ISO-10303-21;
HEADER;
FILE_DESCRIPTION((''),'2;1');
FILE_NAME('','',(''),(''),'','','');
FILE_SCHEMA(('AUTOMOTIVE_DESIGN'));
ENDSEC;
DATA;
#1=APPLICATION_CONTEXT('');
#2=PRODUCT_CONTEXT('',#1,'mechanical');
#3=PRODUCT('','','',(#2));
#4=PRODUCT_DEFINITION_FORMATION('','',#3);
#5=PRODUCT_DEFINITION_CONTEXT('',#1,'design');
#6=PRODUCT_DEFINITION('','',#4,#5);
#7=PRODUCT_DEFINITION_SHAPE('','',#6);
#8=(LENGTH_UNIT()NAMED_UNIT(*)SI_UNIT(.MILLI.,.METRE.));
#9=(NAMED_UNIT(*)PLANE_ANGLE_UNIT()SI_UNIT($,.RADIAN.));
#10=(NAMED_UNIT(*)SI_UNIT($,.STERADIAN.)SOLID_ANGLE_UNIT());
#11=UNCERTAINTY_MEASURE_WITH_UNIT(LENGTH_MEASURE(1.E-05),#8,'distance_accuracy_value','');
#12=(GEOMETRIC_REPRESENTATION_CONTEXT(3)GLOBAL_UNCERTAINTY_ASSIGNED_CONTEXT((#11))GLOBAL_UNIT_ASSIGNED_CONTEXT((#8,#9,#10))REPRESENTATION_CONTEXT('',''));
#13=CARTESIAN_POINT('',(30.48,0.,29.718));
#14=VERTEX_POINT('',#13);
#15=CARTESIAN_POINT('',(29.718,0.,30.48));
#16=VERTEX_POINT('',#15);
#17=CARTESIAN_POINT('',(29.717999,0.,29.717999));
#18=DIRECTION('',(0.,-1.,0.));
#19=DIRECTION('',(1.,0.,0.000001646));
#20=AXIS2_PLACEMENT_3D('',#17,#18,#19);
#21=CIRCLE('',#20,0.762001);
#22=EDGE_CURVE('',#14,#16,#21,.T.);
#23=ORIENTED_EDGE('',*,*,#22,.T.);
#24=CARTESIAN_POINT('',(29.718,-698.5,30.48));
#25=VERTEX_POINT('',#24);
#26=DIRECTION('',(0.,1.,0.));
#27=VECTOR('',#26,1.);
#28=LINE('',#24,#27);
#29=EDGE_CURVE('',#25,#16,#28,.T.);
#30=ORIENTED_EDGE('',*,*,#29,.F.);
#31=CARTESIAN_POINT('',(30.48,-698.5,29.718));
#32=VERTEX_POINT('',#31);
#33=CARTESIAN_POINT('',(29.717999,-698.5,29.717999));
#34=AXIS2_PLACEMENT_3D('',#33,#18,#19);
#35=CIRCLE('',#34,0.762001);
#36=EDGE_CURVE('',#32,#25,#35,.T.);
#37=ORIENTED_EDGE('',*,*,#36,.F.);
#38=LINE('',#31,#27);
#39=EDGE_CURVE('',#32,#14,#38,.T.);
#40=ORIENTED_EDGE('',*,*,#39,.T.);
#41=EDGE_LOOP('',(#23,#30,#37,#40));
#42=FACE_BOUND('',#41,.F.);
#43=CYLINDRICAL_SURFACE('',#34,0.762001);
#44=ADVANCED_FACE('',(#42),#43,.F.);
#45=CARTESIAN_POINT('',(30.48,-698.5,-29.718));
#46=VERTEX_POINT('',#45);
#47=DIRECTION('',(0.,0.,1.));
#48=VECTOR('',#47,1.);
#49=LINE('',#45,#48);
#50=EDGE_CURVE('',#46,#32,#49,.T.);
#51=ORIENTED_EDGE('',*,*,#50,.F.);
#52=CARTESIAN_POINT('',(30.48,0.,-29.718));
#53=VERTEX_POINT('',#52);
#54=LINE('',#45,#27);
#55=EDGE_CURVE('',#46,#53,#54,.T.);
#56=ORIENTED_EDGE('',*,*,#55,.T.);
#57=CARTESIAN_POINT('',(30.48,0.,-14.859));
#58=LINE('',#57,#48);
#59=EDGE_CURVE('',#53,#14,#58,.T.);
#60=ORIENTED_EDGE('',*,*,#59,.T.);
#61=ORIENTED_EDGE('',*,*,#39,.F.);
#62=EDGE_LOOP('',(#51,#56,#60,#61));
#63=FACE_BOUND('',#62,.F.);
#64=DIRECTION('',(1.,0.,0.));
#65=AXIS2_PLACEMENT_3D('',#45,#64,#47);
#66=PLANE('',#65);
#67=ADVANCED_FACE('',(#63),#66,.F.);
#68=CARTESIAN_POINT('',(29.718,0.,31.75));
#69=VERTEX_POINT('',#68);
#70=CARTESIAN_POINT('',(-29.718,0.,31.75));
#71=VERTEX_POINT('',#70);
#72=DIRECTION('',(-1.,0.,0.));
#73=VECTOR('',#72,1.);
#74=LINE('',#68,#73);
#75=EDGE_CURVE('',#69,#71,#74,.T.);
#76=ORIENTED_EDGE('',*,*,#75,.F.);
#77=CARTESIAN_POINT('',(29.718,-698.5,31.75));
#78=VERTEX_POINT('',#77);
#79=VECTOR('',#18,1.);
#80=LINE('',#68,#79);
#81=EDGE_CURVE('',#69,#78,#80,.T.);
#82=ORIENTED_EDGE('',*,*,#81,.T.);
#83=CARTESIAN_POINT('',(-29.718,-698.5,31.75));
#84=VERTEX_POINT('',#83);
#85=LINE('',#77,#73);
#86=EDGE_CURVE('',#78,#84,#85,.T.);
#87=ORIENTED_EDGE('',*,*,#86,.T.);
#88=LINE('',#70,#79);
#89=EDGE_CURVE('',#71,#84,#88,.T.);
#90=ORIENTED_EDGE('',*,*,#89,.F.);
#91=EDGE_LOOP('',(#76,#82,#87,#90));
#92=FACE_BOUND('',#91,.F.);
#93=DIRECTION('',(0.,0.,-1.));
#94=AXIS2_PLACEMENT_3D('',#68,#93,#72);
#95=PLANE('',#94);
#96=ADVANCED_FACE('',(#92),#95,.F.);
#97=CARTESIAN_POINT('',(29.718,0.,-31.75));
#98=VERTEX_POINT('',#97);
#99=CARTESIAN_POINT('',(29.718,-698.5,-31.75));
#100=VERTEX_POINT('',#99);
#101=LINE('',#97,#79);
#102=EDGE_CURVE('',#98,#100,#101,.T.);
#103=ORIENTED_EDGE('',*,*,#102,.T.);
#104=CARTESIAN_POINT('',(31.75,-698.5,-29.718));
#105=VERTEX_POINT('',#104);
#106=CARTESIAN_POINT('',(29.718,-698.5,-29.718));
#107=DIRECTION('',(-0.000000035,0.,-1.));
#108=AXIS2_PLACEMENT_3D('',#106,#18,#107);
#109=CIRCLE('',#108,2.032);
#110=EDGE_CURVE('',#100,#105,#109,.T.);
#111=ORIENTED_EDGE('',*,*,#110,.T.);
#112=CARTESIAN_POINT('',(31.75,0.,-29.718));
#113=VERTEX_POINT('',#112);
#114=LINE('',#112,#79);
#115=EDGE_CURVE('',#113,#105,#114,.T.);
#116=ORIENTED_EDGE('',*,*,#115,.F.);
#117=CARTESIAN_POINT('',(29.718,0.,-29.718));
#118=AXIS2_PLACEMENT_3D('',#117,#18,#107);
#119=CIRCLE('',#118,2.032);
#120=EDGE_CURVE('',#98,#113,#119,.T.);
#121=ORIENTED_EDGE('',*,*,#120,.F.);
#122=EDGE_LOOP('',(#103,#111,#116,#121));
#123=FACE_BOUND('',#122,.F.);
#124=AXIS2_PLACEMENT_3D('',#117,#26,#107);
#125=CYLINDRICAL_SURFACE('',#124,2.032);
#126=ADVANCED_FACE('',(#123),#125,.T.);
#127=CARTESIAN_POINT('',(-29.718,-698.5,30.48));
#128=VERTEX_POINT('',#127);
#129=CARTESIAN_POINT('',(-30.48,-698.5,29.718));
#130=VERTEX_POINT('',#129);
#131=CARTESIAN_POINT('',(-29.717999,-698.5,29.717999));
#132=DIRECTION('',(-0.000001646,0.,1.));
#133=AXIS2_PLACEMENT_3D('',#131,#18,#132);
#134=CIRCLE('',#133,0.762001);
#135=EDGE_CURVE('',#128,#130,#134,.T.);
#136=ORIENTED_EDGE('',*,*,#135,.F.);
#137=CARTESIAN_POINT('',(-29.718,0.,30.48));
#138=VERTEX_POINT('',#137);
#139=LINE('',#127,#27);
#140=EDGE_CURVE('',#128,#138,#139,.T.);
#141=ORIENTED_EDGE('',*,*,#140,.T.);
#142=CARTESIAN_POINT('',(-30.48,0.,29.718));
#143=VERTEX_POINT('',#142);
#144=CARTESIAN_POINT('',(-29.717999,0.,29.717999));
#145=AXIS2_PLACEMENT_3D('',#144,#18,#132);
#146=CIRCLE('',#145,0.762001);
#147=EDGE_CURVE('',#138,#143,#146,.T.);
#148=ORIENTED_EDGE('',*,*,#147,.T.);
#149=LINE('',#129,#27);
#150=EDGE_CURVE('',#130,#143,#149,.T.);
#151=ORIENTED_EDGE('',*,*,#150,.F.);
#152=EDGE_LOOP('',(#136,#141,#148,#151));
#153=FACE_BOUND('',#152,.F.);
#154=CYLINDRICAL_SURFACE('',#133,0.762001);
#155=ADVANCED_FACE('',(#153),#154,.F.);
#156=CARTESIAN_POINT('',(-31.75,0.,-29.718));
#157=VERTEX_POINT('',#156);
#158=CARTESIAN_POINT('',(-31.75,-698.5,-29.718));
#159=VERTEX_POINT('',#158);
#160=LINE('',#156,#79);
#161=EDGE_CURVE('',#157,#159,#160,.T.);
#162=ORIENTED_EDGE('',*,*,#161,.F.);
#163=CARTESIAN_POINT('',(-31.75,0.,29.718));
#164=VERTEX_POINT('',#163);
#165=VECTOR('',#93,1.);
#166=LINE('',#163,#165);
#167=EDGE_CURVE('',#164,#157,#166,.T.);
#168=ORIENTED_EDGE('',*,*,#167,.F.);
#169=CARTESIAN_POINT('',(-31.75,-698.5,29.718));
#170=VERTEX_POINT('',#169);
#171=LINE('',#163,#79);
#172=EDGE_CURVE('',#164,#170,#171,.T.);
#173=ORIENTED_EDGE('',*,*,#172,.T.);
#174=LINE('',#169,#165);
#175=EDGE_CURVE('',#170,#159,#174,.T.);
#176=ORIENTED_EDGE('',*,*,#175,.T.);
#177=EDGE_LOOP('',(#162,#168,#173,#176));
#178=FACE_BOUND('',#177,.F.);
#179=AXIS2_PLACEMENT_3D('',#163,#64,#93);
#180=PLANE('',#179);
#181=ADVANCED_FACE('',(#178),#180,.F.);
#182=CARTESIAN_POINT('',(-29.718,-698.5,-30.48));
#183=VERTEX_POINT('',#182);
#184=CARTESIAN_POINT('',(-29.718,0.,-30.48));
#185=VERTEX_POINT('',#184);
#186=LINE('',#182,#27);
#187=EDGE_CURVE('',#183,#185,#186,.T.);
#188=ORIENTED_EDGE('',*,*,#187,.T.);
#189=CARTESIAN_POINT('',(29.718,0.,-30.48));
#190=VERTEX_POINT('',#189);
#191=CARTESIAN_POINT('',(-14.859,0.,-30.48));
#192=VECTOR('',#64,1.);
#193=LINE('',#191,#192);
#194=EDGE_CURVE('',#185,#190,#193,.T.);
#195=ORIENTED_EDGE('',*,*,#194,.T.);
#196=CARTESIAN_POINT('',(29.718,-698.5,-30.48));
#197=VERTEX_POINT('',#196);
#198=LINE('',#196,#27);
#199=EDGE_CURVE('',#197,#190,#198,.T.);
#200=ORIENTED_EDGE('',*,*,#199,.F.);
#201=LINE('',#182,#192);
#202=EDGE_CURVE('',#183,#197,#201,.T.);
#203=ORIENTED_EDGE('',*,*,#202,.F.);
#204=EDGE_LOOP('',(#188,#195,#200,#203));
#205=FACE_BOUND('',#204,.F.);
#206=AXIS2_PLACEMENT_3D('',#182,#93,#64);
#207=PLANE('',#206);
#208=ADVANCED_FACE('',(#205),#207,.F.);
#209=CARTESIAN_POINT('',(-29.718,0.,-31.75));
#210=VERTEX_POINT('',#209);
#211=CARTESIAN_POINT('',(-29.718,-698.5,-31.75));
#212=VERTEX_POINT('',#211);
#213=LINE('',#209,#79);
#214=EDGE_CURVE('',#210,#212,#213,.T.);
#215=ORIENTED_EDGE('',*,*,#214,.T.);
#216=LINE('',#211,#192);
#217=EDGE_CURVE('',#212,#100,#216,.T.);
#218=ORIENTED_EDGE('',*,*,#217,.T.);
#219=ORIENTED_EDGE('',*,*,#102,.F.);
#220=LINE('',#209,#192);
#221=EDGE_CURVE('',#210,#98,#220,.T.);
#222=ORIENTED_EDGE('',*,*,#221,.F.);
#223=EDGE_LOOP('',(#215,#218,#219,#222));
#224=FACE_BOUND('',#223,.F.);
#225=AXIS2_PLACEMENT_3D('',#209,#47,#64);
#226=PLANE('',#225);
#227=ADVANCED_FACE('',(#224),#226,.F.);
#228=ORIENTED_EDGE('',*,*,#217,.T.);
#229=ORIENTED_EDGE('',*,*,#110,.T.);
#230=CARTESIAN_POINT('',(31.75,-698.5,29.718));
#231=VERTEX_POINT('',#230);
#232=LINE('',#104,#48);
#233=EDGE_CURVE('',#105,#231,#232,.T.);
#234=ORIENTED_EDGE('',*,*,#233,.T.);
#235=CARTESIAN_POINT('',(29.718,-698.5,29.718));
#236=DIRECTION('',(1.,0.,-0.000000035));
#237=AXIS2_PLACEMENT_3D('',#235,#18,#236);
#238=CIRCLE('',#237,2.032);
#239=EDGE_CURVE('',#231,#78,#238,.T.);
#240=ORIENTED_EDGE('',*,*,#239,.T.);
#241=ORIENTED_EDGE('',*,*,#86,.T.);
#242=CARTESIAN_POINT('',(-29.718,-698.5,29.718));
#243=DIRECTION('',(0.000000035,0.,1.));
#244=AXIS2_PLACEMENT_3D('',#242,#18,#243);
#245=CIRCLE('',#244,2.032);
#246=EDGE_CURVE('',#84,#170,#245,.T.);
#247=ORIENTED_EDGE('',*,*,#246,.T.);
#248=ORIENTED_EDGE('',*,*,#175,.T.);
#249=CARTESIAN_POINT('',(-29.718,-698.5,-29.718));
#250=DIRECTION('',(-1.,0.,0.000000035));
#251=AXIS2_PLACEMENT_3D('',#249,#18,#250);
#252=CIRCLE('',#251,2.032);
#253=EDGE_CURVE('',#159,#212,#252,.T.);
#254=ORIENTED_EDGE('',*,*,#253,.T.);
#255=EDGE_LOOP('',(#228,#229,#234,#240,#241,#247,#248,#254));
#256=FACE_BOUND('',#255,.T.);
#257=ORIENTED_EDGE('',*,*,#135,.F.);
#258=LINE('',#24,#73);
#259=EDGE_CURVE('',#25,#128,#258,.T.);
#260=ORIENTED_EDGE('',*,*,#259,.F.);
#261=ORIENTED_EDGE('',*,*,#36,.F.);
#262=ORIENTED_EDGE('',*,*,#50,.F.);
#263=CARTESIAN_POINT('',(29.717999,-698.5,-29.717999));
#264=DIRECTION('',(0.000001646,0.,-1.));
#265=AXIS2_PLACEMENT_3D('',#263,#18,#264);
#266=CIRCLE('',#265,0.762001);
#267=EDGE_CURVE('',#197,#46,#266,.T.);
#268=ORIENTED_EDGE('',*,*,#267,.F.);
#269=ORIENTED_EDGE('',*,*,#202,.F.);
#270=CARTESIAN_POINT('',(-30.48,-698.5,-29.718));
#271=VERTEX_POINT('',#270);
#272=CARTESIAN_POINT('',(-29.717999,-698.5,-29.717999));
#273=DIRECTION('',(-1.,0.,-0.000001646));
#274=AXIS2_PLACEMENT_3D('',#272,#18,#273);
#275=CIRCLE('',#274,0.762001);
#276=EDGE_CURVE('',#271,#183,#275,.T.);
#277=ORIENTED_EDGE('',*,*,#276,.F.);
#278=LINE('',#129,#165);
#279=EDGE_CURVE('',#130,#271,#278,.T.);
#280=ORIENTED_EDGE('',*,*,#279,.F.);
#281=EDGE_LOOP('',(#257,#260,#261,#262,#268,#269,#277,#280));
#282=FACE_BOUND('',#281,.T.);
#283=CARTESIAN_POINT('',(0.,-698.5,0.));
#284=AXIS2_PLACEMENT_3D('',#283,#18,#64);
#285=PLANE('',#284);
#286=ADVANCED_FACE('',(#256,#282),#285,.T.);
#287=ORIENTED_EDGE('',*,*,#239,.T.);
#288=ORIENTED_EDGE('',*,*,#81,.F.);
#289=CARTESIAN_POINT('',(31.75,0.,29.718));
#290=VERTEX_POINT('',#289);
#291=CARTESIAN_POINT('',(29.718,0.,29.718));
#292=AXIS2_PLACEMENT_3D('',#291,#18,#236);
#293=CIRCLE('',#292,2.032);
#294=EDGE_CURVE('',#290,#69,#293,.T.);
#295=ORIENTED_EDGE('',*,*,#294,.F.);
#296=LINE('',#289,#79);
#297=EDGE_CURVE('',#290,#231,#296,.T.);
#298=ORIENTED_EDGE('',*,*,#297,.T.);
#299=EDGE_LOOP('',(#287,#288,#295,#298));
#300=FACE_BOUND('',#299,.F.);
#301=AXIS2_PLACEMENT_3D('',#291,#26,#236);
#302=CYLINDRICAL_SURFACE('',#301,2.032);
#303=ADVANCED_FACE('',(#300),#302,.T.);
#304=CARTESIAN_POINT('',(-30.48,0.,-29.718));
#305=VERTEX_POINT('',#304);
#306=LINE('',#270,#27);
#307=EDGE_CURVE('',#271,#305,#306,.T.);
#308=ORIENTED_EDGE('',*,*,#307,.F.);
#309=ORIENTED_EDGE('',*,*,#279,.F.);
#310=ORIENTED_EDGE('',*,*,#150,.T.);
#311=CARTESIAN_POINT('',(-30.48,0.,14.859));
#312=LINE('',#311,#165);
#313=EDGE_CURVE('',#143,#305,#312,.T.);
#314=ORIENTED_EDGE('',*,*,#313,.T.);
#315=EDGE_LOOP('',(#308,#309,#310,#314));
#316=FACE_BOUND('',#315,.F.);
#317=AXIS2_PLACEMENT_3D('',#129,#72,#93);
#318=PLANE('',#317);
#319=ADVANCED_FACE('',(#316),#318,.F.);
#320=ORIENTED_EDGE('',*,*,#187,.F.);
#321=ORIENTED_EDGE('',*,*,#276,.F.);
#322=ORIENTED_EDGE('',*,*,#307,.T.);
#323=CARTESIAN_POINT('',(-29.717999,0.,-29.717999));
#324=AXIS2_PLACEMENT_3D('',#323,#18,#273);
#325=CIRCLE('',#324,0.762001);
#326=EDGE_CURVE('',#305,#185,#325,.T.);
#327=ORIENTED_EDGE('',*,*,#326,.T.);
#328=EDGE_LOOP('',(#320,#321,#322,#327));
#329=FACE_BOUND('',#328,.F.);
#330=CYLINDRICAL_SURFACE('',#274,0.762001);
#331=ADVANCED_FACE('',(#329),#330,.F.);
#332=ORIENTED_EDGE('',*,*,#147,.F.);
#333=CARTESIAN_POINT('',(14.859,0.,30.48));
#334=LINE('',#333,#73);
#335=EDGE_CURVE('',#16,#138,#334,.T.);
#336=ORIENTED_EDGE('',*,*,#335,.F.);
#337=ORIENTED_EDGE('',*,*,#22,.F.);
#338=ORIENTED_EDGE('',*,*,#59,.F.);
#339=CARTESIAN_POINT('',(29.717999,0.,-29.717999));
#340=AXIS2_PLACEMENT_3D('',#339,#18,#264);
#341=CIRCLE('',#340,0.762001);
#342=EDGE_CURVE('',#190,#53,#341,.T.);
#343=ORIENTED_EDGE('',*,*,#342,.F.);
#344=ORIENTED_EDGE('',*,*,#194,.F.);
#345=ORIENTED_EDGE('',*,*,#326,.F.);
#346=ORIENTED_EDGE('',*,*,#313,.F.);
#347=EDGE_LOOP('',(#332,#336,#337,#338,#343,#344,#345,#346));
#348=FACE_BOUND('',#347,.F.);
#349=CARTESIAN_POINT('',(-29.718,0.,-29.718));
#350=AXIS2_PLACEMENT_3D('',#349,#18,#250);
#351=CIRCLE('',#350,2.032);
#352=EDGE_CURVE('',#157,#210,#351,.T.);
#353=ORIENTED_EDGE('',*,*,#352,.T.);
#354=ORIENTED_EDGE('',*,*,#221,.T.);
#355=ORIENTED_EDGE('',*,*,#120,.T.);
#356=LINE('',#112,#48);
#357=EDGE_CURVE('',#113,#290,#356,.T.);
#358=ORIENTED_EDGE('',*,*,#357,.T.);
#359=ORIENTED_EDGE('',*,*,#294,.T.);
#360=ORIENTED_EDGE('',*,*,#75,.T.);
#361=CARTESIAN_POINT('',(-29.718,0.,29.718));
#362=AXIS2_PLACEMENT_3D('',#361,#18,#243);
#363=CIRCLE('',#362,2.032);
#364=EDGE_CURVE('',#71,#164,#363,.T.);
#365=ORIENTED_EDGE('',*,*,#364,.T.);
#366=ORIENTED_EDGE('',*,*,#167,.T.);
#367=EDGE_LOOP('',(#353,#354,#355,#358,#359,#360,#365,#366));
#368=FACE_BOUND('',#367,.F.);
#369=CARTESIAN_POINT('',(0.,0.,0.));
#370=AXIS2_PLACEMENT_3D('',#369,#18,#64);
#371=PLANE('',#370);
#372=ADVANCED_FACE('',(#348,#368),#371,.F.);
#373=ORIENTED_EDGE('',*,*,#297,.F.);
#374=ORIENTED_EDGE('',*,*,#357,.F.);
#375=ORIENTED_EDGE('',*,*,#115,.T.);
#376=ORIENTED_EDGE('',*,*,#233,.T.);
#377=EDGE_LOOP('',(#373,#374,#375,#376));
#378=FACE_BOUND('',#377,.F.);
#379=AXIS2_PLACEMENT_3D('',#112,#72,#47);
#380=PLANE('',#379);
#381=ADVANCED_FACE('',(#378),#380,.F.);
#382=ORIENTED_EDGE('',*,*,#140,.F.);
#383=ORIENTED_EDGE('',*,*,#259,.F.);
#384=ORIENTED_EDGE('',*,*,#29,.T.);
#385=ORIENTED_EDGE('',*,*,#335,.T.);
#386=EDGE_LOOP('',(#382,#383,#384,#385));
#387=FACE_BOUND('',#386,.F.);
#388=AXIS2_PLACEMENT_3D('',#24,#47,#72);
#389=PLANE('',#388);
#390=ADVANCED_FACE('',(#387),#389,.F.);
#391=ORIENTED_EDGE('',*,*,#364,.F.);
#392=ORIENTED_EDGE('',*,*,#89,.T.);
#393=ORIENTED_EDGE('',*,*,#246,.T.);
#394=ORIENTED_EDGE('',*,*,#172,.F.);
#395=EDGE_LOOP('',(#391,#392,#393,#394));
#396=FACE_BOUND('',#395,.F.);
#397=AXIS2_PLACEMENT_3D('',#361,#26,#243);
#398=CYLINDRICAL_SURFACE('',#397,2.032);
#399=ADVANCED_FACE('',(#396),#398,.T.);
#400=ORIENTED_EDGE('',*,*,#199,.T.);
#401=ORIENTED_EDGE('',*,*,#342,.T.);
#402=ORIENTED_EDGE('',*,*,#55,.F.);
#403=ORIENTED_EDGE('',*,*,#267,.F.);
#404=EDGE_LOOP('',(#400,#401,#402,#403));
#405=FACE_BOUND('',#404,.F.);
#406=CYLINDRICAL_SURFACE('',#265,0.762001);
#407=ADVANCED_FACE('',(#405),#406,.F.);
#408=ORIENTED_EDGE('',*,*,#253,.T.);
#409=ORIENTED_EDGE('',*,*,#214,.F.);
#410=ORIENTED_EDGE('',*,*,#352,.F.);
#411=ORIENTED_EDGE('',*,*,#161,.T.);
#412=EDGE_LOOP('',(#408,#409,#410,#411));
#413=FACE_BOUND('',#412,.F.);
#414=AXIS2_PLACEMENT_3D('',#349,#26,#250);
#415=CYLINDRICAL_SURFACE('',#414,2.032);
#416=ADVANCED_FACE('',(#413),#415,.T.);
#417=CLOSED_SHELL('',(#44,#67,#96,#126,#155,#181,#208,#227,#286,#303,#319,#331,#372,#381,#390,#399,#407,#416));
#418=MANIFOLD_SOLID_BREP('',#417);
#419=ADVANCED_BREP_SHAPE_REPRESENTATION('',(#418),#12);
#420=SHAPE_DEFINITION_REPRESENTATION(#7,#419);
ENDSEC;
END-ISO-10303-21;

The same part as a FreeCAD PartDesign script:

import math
import FreeCAD as App
import Part
import Sketcher
Q = App.Units.Quantity

doc = App.newDocument("Part")
params = doc.addObject("Spreadsheet::Sheet", "Params")
for row, (alias, value) in enumerate([
    ("sketch1_radius", "0.08 in"),
    ("sketch1_width", "2.34 in"),
    ("pad1_length", "27.5 in"),
    ("sketch2_radius", "0.03 in"),
    ("sketch2_width", "2.34 in"),
], start=1):
    params.set(f"A{row}", alias)
    params.set(f"B{row}", "=" + value)
    params.setAlias(f"B{row}", alias)

body = doc.addObject("PartDesign::Body", "Body")

# Sketch on XZ plane
sketch1 = doc.addObject("Sketcher::SketchObject", "Sketch")
body.addObject(sketch1)
sketch1.AttachmentSupport = (doc.XZ_Plane, [""])
sketch1.MapMode = "FlatFace"
sketch1.addGeometry([
    Part.LineSegment(App.Vector(-29.7, -31.8, 0), App.Vector(29.7, -31.8, 0)),  # 0
    Part.ArcOfCircle(Part.Circle(App.Vector(29.7, -29.7, 0), App.Vector(0, 0, 1), 2), math.radians(-90), math.radians(0)),  # 1
    Part.LineSegment(App.Vector(31.8, -29.7, 0), App.Vector(31.8, 29.7, 0)),  # 2
    Part.ArcOfCircle(Part.Circle(App.Vector(29.7, 29.7, 0), App.Vector(0, 0, 1), 2), math.radians(0), math.radians(90)),  # 3
    Part.LineSegment(App.Vector(29.7, 31.8, 0), App.Vector(-29.7, 31.8, 0)),  # 4
    Part.ArcOfCircle(Part.Circle(App.Vector(-29.7, 29.7, 0), App.Vector(0, 0, 1), 2), math.radians(90), math.radians(180)),  # 5
    Part.LineSegment(App.Vector(-31.8, 29.7, 0), App.Vector(-31.8, -29.7, 0)),  # 6
    Part.ArcOfCircle(Part.Circle(App.Vector(-29.7, -29.7, 0), App.Vector(0, 0, 1), 2), math.radians(180), math.radians(270)),  # 7
], False)
sketch1.addConstraint([
    Sketcher.Constraint("Tangent", 0, 2, 1, 1),
    Sketcher.Constraint("Tangent", 1, 2, 2, 1),
    Sketcher.Constraint("Tangent", 2, 2, 3, 1),
    Sketcher.Constraint("Tangent", 3, 2, 4, 1),
    Sketcher.Constraint("Tangent", 4, 2, 5, 1),
    Sketcher.Constraint("Tangent", 5, 2, 6, 1),
    Sketcher.Constraint("Tangent", 6, 2, 7, 1),
    Sketcher.Constraint("Tangent", 7, 2, 0, 1),
    Sketcher.Constraint("Horizontal", 0),
    Sketcher.Constraint("Vertical", 2),
    Sketcher.Constraint("Horizontal", 4),
    Sketcher.Constraint("Vertical", 6),
    Sketcher.Constraint("Equal", 1, 3),
    Sketcher.Constraint("Equal", 3, 5),
    Sketcher.Constraint("Equal", 5, 7),
    Sketcher.Constraint("Symmetric", 1, 3, 5, 3, -1, 1),
    Sketcher.Constraint("Equal", 4, 2),
    Sketcher.Constraint("Radius", 1, Q("0.08 in")),
    Sketcher.Constraint("DistanceX", 0, 1, 0, 2, Q("2.34 in")),
])
sketch1.setExpression("Constraints[17]", "Params.sketch1_radius")
sketch1.setExpression("Constraints[18]", "Params.sketch1_width")
pad1 = doc.addObject("PartDesign::Pad", "Pad")
body.addObject(pad1)
pad1.Profile = sketch1
pad1.setExpression("Length", "Params.pad1_length")

# Sketch on XZ plane
sketch2 = doc.addObject("Sketcher::SketchObject", "Sketch001")
body.addObject(sketch2)
sketch2.AttachmentSupport = (doc.XZ_Plane, [""])
sketch2.MapMode = "FlatFace"
sketch2.AttachmentOffset = App.Placement(App.Vector(0, 0, 27.5 * 25.4), App.Rotation())
sketch2.addGeometry([
    Part.ArcOfCircle(Part.Circle(App.Vector(29.7, -29.7, 0), App.Vector(0, 0, 1), 0.8), math.radians(-90), math.radians(0)),  # 0
    Part.LineSegment(App.Vector(30.5, -29.7, 0), App.Vector(30.5, 29.7, 0)),  # 1
    Part.ArcOfCircle(Part.Circle(App.Vector(29.7, 29.7, 0), App.Vector(0, 0, 1), 0.8), math.radians(0), math.radians(90)),  # 2
    Part.LineSegment(App.Vector(29.7, 30.5, 0), App.Vector(-29.7, 30.5, 0)),  # 3
    Part.ArcOfCircle(Part.Circle(App.Vector(-29.7, 29.7, 0), App.Vector(0, 0, 1), 0.8), math.radians(90), math.radians(180)),  # 4
    Part.LineSegment(App.Vector(-30.5, 29.7, 0), App.Vector(-30.5, -29.7, 0)),  # 5
    Part.ArcOfCircle(Part.Circle(App.Vector(-29.7, -29.7, 0), App.Vector(0, 0, 1), 0.8), math.radians(-180), math.radians(-90)),  # 6
    Part.LineSegment(App.Vector(-29.7, -30.5, 0), App.Vector(29.7, -30.5, 0)),  # 7
], False)
sketch2.addConstraint([
    Sketcher.Constraint("Tangent", 0, 2, 1, 1),
    Sketcher.Constraint("Tangent", 1, 2, 2, 1),
    Sketcher.Constraint("Tangent", 2, 2, 3, 1),
    Sketcher.Constraint("Tangent", 3, 2, 4, 1),
    Sketcher.Constraint("Tangent", 4, 2, 5, 1),
    Sketcher.Constraint("Tangent", 5, 2, 6, 1),
    Sketcher.Constraint("Tangent", 6, 2, 7, 1),
    Sketcher.Constraint("Tangent", 7, 2, 0, 1),
    Sketcher.Constraint("Vertical", 1),
    Sketcher.Constraint("Horizontal", 3),
    Sketcher.Constraint("Vertical", 5),
    Sketcher.Constraint("Horizontal", 7),
    Sketcher.Constraint("Equal", 0, 2),
    Sketcher.Constraint("Equal", 2, 4),
    Sketcher.Constraint("Equal", 4, 6),
    Sketcher.Constraint("Symmetric", 0, 3, 4, 3, -1, 1),
    Sketcher.Constraint("Equal", 7, 1),
    Sketcher.Constraint("Radius", 0, Q("0.03 in")),
    Sketcher.Constraint("DistanceX", 3, 2, 3, 1, Q("2.34 in")),
])
sketch2.setExpression("Constraints[17]", "Params.sketch2_radius")
sketch2.setExpression("Constraints[18]", "Params.sketch2_width")
pocket1 = doc.addObject("PartDesign::Pocket", "Pocket")
body.addObject(pocket1)
pocket1.Profile = sketch2
pocket1.Type = "ThroughAll"

doc.recompute()
